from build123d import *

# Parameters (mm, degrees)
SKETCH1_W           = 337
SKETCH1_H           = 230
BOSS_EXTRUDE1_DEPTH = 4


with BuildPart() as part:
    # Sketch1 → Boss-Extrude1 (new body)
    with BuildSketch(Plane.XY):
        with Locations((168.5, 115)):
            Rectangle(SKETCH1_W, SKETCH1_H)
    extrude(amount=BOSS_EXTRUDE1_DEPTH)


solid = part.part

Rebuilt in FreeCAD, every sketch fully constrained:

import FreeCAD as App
import Part
import Sketcher
from FreeCAD import Vector
Q = App.Units.Quantity


def add_polygon(sketch, points):
    """Adds a closed chain of lines whose ends are joined by coincident constraints."""
    first, n = sketch.GeometryCount, len(points)
    for a, b in zip(points, points[1:] + points[:1]):
        sketch.addGeometry(Part.LineSegment(App.Vector(*a, 0), App.Vector(*b, 0)), False)
    for i in range(n):
        sketch.addConstraint(Sketcher.Constraint("Coincident", first + i, 2, first + (i + 1) % n, 1))

doc = App.newDocument("Part")
params = doc.addObject("Spreadsheet::Sheet", "Params")
for row, (alias, value) in enumerate([
    ("sketch1_width", "337 mm"),
    ("sketch1_height", "230 mm"),
    ("pad1_length", "4 mm"),
], start=1):
    params.set(f"A{row}", alias)
    params.set(f"B{row}", "=" + value)
    params.setAlias(f"B{row}", alias)

body = doc.addObject("PartDesign::Body", "Body")

sketch1 = body.newObject("Sketcher::SketchObject", "Sketch")
sketch1.AttachmentSupport = (doc.getObject("XY_Plane"), [""])
sketch1.MapMode = "FlatFace"
add_polygon(sketch1, [(0, 230), (0, 0), (337, 0), (337, 230)])
sketch1.addConstraint([
    Sketcher.Constraint("Vertical", 0),
    Sketcher.Constraint("Horizontal", 1),
    Sketcher.Constraint("Vertical", 2),
    Sketcher.Constraint("Horizontal", 3),
    Sketcher.Constraint("Coincident", 0, 2, -1, 1),
    Sketcher.Constraint("DistanceX", 1, 1, 1, 2, Q("337 mm")),
    Sketcher.Constraint("DistanceY", 0, 2, 0, 1, Q("230 mm")),
])
sketch1.setExpression("Constraints[9]", "Params.sketch1_width")
sketch1.setExpression("Constraints[10]", "Params.sketch1_height")
pad1 = body.newObject("PartDesign::Pad", "Pad")
pad1.Profile = sketch1
pad1.setExpression("Length", "Params.pad1_length")

doc.recompute()
